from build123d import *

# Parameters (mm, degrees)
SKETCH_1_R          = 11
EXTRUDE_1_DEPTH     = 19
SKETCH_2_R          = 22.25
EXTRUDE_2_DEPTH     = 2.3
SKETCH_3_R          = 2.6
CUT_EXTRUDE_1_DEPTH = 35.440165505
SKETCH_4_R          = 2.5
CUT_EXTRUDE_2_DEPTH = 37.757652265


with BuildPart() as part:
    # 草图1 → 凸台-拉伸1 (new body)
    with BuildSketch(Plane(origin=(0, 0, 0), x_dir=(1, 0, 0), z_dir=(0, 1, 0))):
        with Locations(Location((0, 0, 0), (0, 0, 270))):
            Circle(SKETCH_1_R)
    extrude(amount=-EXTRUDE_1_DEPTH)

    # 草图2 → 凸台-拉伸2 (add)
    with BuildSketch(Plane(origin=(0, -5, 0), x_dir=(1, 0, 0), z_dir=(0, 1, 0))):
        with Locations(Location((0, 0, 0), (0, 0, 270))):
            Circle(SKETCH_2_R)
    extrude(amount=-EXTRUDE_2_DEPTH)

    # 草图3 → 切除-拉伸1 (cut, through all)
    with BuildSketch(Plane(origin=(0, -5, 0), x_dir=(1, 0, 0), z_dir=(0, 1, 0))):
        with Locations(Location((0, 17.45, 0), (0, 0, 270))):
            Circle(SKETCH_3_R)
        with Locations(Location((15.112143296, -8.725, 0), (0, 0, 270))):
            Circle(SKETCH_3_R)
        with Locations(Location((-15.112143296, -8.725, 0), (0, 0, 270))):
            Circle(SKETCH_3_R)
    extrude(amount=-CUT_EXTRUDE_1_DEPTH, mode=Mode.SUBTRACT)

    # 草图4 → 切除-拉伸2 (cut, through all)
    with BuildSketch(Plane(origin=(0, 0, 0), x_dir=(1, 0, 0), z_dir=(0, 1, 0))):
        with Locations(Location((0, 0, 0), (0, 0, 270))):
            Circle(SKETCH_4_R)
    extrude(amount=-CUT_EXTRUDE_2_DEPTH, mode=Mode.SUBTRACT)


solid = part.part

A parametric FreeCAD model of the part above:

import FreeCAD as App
import Part
import Sketcher

V = App.Vector

doc = App.newDocument("Part")
body = doc.addObject("PartDesign::Body", "Body")

# Sketch on XZ plane
sketch1 = doc.addObject("Sketcher::SketchObject", "Sketch")
body.addObject(sketch1)
sketch1.AttachmentSupport = (doc.XZ_Plane, [""])
sketch1.MapMode = "FlatFace"
sketch1.addGeometry(Part.Circle(V(0, 0, 0), V(0, 0, 1), 11), False)
sketch1.addConstraint(Sketcher.Constraint("Coincident", 0, 3, -1, 1))
sketch1.addConstraint(Sketcher.Constraint("Diameter", 0, 22.0))
pad1 = doc.addObject("PartDesign::Pad", "Pad")
body.addObject(pad1)
pad1.Profile = sketch1
pad1.Length = 19

# Sketch on XZ plane
sketch2 = doc.addObject("Sketcher::SketchObject", "Sketch001")
body.addObject(sketch2)
sketch2.AttachmentSupport = (doc.XZ_Plane, [""])
sketch2.MapMode = "FlatFace"
sketch2.AttachmentOffset = App.Placement(V(0, 0, 5), App.Rotation())
sketch2.addGeometry(Part.Circle(V(0, 0, 0), V(0, 0, 1), 22.25), False)
sketch2.addConstraint(Sketcher.Constraint("Coincident", 0, 3, -1, 1))
sketch2.addConstraint(Sketcher.Constraint("Diameter", 0, 44.5))
pad2 = doc.addObject("PartDesign::Pad", "Pad001")
body.addObject(pad2)
pad2.Profile = sketch2
pad2.Length = 2.3

# Sketch on XZ plane
sketch3 = doc.addObject("Sketcher::SketchObject", "Sketch002")
body.addObject(sketch3)
sketch3.AttachmentSupport = (doc.XZ_Plane, [""])
sketch3.MapMode = "FlatFace"
sketch3.AttachmentOffset = App.Placement(V(0, 0, 5), App.Rotation())
sketch3.addGeometry(Part.Circle(V(0, -17.45, 0), V(0, 0, 1), 2.6), False)
sketch3.addGeometry(Part.Circle(V(15.112143, 8.725, 0), V(0, 0, 1), 2.6), False)
sketch3.addGeometry(Part.Circle(V(-15.112143, 8.725, 0), V(0, 0, 1), 2.6), False)
sketch3.addConstraint(Sketcher.Constraint("Equal", 0, 1))
sketch3.addConstraint(Sketcher.Constraint("Equal", 1, 2))
sketch3.addConstraint(Sketcher.Constraint("Symmetric", 1, 3, 2, 3, -2))
sketch3.addConstraint(Sketcher.Constraint("PointOnObject", 0, 3, -2))
sketch3.addConstraint(Sketcher.Constraint("Diameter", 0, 5.2))
sketch3.addConstraint(Sketcher.Constraint("DistanceY", 0, 3, -1, 1, 17.45))
sketch3.addConstraint(Sketcher.Constraint("DistanceY", -1, 1, 1, 3, 8.725))
sketch3.addConstraint(Sketcher.Constraint("DistanceX", -1, 1, 1, 3, 15.112143))
pocket1 = doc.addObject("PartDesign::Pocket", "Pocket")
body.addObject(pocket1)
pocket1.Profile = sketch3
pocket1.Type = "ThroughAll"
pocket1.Reversed = True

# Sketch on XZ plane
sketch4 = doc.addObject("Sketcher::SketchObject", "Sketch003")
body.addObject(sketch4)
sketch4.AttachmentSupport = (doc.XZ_Plane, [""])
sketch4.MapMode = "FlatFace"
sketch4.addGeometry(Part.Circle(V(0, 0, 0), V(0, 0, 1), 2.5), False)
sketch4.addConstraint(Sketcher.Constraint("Coincident", 0, 3, -1, 1))
sketch4.addConstraint(Sketcher.Constraint("Diameter", 0, 5.0))
pocket2 = doc.addObject("PartDesign::Pocket", "Pocket001")
body.addObject(pocket2)
pocket2.Profile = sketch4
pocket2.Type = "ThroughAll"
pocket2.Reversed = True

doc.recompute()
